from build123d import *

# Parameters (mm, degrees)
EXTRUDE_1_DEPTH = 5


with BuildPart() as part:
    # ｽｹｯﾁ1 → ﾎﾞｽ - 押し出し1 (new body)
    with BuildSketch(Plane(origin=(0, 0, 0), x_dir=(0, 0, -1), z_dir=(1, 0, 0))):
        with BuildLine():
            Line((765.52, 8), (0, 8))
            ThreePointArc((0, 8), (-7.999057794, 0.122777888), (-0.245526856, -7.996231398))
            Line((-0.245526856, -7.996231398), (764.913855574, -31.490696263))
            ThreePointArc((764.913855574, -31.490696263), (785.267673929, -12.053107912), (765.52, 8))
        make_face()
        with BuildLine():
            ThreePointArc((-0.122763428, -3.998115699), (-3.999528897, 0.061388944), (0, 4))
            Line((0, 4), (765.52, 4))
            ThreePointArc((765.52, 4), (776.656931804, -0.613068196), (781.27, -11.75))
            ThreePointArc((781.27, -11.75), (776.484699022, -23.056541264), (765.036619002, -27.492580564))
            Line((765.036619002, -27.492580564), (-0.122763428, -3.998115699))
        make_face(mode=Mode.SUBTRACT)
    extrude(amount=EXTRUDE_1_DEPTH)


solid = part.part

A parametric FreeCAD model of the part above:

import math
import FreeCAD as App
import Part
import Sketcher

V = App.Vector
Q = App.Units.Quantity

doc = App.newDocument("Part")
body = doc.addObject("PartDesign::Body", "Body")

# Sketch on YZ plane
sketch1 = body.newObject("Sketcher::SketchObject", "Sketch")
sketch1.AttachmentSupport = (doc.getObject("YZ_Plane"), [""])
sketch1.MapMode = "FlatFace"
sketch1.addGeometry([
    Part.LineSegment(V(8, -765.5, 0), V(8, 0, 0)),  # 0
    Part.ArcOfCircle(Part.Circle(V(0, 0, 0), V(0, 0, 1), 8), math.radians(0), math.radians(178)),  # 1
    Part.LineSegment(V(-8, 0.2, 0), V(-31.5, -764.9, 0)),  # 2
    Part.ArcOfCircle(Part.Circle(V(-11.8, -765.5, 0), V(0, 0, 1), 19.8), math.radians(178), math.radians(360)),  # 3
    Part.LineSegment(V(-27.5, -765, 0), V(-4, 0.1, 0)),  # 4
    Part.ArcOfCircle(Part.Circle(V(0, 0, 0), V(0, 0, 1), 4), math.radians(0), math.radians(178)),  # 5
    Part.LineSegment(V(4, 0, 0), V(4, -765.5, 0)),  # 6
    Part.ArcOfCircle(Part.Circle(V(-11.7, -765.5, 0), V(0, 0, 1), 15.7), math.radians(-90), math.radians(0)),  # 7
    Part.ArcOfCircle(Part.Circle(V(-11.8, -765.5, 0), V(0, 0, 1), 15.8), math.radians(178), math.radians(270)),  # 8
], False)
sketch1.addConstraint([
    Sketcher.Constraint("Tangent", 0, 2, 1, 1),
    Sketcher.Constraint("Tangent", 1, 2, 2, 1),
    Sketcher.Constraint("Tangent", 2, 2, 3, 1),
    Sketcher.Constraint("Tangent", 3, 2, 0, 1),
    Sketcher.Constraint("Tangent", 4, 2, 5, 2),
    Sketcher.Constraint("Tangent", 5, 1, 6, 1),
    Sketcher.Constraint("Tangent", 6, 2, 7, 2),
    Sketcher.Constraint("Tangent", 7, 1, 8, 2),
    Sketcher.Constraint("Tangent", 8, 1, 4, 1),
    Sketcher.Constraint("Vertical", 0),
    Sketcher.Constraint("Vertical", 6),
    Sketcher.Constraint("Coincident", 1, 3, -1, 1),
    Sketcher.Constraint("Coincident", 5, 3, -1, 1),
    Sketcher.Constraint("Coincident", 7, 3, 3, 3),
    Sketcher.Constraint("Equal", 7, 8),
    Sketcher.Constraint("Vertical", 8, 3, 7, 1),
    Sketcher.Constraint("Radius", 1, Q("8 mm")),
    Sketcher.Constraint("Radius", 5, Q("4 mm")),
    Sketcher.Constraint("Radius", 3, Q("19.75 mm")),
    Sketcher.Constraint("DistanceY", 0, 1, 0, 2, Q("765.52 mm")),
])
pad1 = body.newObject("PartDesign::Pad", "Pad")
pad1.Profile = sketch1
pad1.Length = 5

doc.recompute()
